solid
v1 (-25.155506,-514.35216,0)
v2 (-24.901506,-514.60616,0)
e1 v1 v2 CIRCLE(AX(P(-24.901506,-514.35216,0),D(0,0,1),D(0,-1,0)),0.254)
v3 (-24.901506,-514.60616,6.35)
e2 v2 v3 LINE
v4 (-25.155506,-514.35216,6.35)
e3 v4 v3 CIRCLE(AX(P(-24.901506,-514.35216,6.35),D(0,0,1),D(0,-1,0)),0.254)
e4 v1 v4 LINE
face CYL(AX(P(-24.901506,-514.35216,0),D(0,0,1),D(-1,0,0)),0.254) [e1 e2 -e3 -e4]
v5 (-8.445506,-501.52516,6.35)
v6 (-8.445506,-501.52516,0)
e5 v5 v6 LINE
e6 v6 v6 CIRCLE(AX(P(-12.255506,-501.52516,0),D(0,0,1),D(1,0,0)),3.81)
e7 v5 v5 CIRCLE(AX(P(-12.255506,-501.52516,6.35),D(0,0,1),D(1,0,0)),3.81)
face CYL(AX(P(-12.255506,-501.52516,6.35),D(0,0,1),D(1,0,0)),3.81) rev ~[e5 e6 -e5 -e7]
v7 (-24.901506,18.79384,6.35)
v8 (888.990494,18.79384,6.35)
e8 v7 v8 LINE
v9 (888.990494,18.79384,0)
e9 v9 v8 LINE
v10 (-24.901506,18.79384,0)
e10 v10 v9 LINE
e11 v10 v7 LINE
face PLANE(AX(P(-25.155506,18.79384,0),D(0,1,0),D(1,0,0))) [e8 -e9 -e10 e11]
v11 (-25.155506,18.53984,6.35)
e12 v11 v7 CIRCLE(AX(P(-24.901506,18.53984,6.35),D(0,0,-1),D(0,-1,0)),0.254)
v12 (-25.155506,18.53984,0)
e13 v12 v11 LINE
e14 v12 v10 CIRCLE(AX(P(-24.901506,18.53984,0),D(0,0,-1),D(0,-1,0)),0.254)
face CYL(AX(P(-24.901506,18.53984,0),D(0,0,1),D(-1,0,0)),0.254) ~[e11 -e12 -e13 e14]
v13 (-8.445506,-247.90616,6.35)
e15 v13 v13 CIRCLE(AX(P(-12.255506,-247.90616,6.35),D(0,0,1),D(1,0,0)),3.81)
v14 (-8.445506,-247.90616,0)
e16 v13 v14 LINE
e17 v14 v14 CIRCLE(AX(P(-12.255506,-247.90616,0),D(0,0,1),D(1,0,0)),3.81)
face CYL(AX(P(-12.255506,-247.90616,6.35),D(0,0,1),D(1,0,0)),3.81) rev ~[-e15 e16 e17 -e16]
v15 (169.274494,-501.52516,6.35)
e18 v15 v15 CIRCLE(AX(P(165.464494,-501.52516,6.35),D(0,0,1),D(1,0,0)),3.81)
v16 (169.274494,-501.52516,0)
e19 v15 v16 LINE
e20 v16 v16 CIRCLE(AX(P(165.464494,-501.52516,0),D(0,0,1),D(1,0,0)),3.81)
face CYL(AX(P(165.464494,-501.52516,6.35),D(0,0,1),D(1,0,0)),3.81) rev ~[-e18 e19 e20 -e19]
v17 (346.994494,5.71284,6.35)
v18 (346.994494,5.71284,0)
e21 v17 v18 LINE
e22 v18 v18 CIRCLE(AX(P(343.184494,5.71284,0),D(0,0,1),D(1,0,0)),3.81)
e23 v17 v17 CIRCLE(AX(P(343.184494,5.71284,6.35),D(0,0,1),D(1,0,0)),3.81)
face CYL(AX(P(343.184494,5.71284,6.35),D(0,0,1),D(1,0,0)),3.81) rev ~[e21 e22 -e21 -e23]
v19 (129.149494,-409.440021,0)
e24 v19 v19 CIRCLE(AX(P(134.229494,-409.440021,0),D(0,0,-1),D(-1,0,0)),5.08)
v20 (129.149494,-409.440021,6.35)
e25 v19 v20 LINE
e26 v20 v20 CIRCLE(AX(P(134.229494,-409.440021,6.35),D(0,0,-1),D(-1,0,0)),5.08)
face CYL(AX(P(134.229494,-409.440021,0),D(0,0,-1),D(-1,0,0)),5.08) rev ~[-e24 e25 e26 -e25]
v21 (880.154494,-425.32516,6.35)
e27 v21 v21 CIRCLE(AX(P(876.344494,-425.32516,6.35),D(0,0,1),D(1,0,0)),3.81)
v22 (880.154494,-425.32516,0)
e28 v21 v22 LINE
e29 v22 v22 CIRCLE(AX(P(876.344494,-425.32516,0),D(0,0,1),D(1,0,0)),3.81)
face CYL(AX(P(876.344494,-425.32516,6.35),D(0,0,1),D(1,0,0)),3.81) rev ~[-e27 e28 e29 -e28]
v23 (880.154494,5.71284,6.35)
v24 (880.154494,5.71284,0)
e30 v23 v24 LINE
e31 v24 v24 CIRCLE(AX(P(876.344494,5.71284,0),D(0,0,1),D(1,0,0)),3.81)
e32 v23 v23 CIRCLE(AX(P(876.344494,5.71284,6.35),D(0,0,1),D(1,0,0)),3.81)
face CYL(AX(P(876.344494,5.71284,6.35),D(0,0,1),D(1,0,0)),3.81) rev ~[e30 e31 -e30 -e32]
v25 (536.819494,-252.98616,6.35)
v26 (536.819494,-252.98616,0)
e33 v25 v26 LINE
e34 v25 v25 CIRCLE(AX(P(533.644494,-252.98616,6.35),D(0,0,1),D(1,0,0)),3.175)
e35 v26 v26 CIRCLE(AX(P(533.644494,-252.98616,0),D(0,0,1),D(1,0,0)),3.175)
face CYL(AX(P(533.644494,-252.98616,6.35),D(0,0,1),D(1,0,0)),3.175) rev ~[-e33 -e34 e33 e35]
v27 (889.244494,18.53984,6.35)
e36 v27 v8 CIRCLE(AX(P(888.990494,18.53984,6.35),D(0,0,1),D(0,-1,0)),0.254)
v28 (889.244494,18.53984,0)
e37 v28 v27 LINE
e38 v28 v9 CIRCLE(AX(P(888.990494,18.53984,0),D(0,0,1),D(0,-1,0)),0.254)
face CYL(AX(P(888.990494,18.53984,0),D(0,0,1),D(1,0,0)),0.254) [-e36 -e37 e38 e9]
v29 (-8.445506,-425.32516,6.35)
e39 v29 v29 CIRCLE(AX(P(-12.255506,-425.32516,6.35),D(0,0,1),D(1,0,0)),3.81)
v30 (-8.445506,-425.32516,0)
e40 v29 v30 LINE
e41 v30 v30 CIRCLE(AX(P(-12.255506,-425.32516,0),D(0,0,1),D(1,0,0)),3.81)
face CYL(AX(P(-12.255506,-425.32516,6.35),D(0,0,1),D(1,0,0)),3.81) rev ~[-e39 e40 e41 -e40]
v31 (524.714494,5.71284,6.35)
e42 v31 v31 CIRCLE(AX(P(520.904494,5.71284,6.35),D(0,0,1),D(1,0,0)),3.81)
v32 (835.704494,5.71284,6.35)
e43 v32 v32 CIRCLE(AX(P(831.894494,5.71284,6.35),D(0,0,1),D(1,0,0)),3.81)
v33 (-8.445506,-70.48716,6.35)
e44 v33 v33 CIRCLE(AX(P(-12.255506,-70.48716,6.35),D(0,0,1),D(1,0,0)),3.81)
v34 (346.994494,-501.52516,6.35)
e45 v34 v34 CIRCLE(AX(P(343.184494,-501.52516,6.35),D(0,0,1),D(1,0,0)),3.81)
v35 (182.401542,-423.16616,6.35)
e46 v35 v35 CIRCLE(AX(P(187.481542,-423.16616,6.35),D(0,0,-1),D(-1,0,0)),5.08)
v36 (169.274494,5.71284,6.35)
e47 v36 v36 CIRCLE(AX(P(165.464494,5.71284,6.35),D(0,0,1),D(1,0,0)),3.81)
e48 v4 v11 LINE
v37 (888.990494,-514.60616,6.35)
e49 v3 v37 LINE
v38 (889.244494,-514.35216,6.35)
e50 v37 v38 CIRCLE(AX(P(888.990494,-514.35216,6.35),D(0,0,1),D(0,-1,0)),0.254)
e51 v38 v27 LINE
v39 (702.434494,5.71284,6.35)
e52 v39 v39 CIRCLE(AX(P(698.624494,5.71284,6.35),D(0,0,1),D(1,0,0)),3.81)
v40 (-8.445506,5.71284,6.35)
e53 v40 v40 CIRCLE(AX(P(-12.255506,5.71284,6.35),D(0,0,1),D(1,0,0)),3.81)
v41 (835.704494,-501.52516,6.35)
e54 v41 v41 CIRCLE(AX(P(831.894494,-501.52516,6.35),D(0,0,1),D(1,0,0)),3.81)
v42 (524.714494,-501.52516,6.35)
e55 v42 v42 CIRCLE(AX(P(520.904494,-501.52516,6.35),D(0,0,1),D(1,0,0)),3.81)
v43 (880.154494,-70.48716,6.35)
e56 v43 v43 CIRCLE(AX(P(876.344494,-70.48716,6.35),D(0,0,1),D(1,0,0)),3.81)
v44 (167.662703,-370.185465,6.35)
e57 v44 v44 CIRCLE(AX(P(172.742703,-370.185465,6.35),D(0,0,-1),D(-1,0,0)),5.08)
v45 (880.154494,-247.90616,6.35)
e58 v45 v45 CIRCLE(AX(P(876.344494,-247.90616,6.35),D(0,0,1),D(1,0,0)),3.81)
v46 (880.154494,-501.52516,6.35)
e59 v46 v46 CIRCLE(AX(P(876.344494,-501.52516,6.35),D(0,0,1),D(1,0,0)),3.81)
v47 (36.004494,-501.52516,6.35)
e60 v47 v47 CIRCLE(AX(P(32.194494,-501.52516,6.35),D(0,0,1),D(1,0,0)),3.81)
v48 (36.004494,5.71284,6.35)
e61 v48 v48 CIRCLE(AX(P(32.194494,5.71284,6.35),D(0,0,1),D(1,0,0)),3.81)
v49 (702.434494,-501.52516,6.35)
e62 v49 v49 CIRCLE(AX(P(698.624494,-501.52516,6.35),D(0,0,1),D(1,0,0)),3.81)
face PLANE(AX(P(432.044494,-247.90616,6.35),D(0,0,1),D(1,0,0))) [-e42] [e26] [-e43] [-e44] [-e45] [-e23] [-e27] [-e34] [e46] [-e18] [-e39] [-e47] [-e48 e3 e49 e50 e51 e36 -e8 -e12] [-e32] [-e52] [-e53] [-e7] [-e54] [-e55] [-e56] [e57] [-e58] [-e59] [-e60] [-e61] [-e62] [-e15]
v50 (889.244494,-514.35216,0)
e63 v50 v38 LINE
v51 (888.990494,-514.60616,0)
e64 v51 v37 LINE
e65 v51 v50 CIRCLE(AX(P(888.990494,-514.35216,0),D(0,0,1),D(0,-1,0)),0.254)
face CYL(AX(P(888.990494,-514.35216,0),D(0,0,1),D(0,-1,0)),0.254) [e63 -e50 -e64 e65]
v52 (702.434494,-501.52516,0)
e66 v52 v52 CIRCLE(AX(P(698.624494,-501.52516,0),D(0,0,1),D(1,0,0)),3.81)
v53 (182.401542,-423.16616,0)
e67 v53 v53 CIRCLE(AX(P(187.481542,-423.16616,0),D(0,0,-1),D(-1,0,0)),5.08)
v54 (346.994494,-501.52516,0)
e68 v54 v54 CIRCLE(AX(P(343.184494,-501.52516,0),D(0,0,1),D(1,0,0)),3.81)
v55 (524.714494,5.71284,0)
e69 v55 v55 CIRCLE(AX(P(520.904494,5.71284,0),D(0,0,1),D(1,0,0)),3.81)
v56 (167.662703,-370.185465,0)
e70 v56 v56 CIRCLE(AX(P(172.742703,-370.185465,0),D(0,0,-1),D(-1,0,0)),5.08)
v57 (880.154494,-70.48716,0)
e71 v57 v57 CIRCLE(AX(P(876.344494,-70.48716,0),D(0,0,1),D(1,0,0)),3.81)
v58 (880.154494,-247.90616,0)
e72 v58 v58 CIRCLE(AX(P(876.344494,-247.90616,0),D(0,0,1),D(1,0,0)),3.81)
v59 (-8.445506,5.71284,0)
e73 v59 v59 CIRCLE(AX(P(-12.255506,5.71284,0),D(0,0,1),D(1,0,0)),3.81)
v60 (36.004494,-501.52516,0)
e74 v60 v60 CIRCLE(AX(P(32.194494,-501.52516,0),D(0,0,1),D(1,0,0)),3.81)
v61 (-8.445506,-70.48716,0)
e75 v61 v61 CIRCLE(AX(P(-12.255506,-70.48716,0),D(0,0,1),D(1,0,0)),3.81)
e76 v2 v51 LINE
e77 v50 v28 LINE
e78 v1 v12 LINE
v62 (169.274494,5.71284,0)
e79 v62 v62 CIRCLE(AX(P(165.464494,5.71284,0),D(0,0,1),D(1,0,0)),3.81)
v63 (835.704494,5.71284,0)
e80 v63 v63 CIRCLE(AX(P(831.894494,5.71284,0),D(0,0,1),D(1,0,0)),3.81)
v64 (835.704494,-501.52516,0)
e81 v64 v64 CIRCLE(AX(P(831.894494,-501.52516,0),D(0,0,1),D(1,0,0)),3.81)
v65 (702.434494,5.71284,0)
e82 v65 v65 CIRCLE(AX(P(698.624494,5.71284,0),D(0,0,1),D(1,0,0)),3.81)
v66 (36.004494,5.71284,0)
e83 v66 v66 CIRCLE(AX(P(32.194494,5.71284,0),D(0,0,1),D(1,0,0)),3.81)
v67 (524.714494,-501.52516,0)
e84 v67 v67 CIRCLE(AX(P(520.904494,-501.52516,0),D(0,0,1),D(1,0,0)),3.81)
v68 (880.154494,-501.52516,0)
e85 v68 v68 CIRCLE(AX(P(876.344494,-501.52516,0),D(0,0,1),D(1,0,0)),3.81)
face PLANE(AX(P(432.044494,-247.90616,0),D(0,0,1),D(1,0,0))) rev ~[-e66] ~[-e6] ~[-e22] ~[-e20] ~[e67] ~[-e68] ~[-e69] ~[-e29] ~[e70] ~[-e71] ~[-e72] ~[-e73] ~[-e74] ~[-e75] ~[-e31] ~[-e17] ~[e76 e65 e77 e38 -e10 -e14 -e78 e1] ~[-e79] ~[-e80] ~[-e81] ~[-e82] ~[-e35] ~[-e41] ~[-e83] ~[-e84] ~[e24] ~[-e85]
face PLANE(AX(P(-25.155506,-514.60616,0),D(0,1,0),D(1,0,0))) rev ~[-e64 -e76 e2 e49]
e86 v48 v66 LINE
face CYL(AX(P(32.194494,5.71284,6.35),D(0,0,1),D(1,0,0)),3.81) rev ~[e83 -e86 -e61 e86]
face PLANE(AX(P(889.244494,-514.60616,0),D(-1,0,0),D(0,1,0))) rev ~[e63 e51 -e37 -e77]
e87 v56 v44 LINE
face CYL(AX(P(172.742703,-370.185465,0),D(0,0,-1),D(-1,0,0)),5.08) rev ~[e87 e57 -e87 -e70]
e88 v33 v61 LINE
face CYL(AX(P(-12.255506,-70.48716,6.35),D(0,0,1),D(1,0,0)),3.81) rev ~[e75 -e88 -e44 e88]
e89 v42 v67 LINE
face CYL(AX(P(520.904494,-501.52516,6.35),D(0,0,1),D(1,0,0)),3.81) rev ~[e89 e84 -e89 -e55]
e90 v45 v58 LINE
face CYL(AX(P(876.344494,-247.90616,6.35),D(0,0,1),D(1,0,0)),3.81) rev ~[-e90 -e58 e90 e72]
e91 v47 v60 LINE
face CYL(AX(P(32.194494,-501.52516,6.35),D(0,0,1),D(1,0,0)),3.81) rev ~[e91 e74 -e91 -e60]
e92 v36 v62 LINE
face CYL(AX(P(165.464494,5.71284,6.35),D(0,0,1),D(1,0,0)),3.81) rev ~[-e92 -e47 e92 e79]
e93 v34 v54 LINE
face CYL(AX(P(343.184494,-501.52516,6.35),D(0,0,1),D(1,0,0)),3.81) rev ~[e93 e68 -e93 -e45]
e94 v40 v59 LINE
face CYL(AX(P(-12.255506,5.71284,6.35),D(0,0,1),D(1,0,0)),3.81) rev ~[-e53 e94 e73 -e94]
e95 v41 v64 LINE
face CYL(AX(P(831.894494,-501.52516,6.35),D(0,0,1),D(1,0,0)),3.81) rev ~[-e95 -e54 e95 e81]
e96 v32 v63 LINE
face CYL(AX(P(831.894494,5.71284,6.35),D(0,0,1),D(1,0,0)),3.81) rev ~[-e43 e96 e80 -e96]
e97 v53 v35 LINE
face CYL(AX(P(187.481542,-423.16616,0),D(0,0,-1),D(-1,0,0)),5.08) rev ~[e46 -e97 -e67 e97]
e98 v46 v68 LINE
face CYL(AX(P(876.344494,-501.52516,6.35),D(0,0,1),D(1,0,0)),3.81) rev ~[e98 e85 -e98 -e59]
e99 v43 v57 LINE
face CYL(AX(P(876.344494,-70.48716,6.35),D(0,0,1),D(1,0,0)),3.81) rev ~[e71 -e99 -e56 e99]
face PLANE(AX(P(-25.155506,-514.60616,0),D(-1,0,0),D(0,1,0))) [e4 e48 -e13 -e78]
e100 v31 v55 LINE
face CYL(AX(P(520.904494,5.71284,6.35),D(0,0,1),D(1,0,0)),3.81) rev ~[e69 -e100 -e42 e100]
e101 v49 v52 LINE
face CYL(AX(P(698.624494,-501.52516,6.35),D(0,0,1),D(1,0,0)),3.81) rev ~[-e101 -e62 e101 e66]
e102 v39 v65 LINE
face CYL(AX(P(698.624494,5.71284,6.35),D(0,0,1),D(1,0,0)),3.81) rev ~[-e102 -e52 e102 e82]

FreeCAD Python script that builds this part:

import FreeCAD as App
import Part
import Sketcher
Q = App.Units.Quantity


def edges_at(feature, points):
    """Names of the edges that pass closest to the given points."""
    edges = feature.Shape.Edges
    near = lambda p: min(range(len(edges)), key=lambda i: edges[i].distToShape(Part.Vertex(*p))[0])
    return sorted({f"Edge{near(p) + 1}" for p in points})

doc = App.newDocument("Part")
params = doc.addObject("Spreadsheet::Sheet", "Params")
for row, (alias, value) in enumerate([
    ("sketch1_width", "36 in"),
    ("sketch1_height", "21 in"),
    ("pad1_length", "0.25 in"),
    ("fillet_radius", "0.01 in"),
    ("sketch2_diameter", "0.4 in"),
    ("sketch3_diameter", "0.3 in"),
    ("sketch4_diameter", "0.25 in"),
], start=1):
    params.set(f"A{row}", alias)
    params.set(f"B{row}", "=" + value)
    params.setAlias(f"B{row}", alias)

body = doc.addObject("PartDesign::Body", "Body")

sketch1 = doc.addObject("Sketcher::SketchObject", "Sketch")
body.addObject(sketch1)
sketch1.AttachmentSupport = (doc.XY_Plane, [""])
sketch1.MapMode = "FlatFace"
sketch1.addGeometry([
    Part.LineSegment(App.Vector(-25.155506, 18.79384, 0), App.Vector(-25.155506, -514.60616, 0)),
    Part.LineSegment(App.Vector(-25.155506, -514.60616, 0), App.Vector(889.244494, -514.60616, 0)),
    Part.LineSegment(App.Vector(889.244494, -514.60616, 0), App.Vector(889.244494, 18.79384, 0)),
    Part.LineSegment(App.Vector(889.244494, 18.79384, 0), App.Vector(-25.155506, 18.79384, 0)),
], False)
sketch1.addConstraint([
    Sketcher.Constraint("Coincident", 0, 2, 1, 1),
    Sketcher.Constraint("Coincident", 1, 2, 2, 1),
    Sketcher.Constraint("Coincident", 2, 2, 3, 1),
    Sketcher.Constraint("Coincident", 3, 2, 0, 1),
    Sketcher.Constraint("Vertical", 0),
    Sketcher.Constraint("Horizontal", 1),
    Sketcher.Constraint("Vertical", 2),
    Sketcher.Constraint("Horizontal", 3),
    Sketcher.Constraint("DistanceX", 1, 1, 1, 2, Q("36 in")),
    Sketcher.Constraint("DistanceY", 0, 2, 0, 1, Q("21 in")),
    Sketcher.Constraint("DistanceY", 0, 2, -1, 1, 514.60616),
    Sketcher.Constraint("DistanceX", 0, 2, -1, 1, 25.155506),
])
sketch1.setExpression("Constraints[8]", "Params.sketch1_width")
sketch1.setExpression("Constraints[9]", "Params.sketch1_height")
pad1 = doc.addObject("PartDesign::Pad", "Pad")
body.addObject(pad1)
pad1.Profile = sketch1
pad1.setExpression("Length", "Params.pad1_length")
doc.recompute()

fillet = doc.addObject("PartDesign::Fillet", "Fillet")
body.addObject(fillet)
fillet.Base = (pad1, edges_at(pad1, [
    (-25.156, 18.794, 3.175),
    (889.244, 18.794, 3.175),
    (889.244, -514.606, 3.175),
    (-25.156, -514.606, 3.175),
]))
fillet.setExpression("Radius", "Params.fillet_radius")

sketch2 = doc.addObject("Sketcher::SketchObject", "Sketch001")
body.addObject(sketch2)
sketch2.AttachmentSupport = (doc.XY_Plane, [""])
sketch2.MapMode = "FlatFace"
sketch2.addGeometry([
    Part.Circle(App.Vector(187.481542, -423.16616, 0), App.Vector(0, 0, 1), 5.08),
    Part.Circle(App.Vector(134.229494, -409.440021, 0), App.Vector(0, 0, 1), 5.08),
    Part.Circle(App.Vector(172.742703, -370.185465, 0), App.Vector(0, 0, 1), 5.08),
], False)
sketch2.addConstraint([
    Sketcher.Constraint("Equal", 0, 1),
    Sketcher.Constraint("Equal", 1, 2),
    Sketcher.Constraint("Diameter", 0, Q("0.4 in")),
    Sketcher.Constraint("DistanceX", -1, 1, 0, 3, 187.481542),
    Sketcher.Constraint("DistanceY", 0, 3, -1, 1, 423.16616),
    Sketcher.Constraint("DistanceY", 1, 3, -1, 1, 409.440021),
    Sketcher.Constraint("DistanceX", 2, 3, 0, 3, 14.738839),
    Sketcher.Constraint("DistanceX", 1, 3, 2, 3, 38.513209),
    Sketcher.Constraint("DistanceY", 2, 3, -1, 1, 370.185465),
])
sketch2.setExpression("Constraints[2]", "Params.sketch2_diameter")
pocket1 = doc.addObject("PartDesign::Pocket", "Pocket")
body.addObject(pocket1)
pocket1.Profile = sketch2
pocket1.Type = "ThroughAll"
pocket1.Reversed = True

sketch3 = doc.addObject("Sketcher::SketchObject", "Sketch002")
body.addObject(sketch3)
sketch3.AttachmentSupport = (doc.XY_Plane, [""])
sketch3.MapMode = "FlatFace"
sketch3.AttachmentOffset = App.Placement(App.Vector(0, 0, 0.25 * 25.4), App.Rotation())
sketch3.addGeometry([
    Part.Circle(App.Vector(876.344494, 5.71284, 0), App.Vector(0, 0, 1), 3.81),
    Part.Circle(App.Vector(876.344494, -247.90616, 0), App.Vector(0, 0, 1), 3.81),
    Part.Circle(App.Vector(876.344494, -501.52516, 0), App.Vector(0, 0, 1), 3.81),
    Part.Circle(App.Vector(-12.255506, 5.71284, 0), App.Vector(0, 0, 1), 3.81),
    Part.Circle(App.Vector(-12.255506, -247.90616, 0), App.Vector(0, 0, 1), 3.81),
    Part.Circle(App.Vector(-12.255506, -501.52516, 0), App.Vector(0, 0, 1), 3.81),
    Part.Circle(App.Vector(698.624494, 5.71284, 0), App.Vector(0, 0, 1), 3.81),
    Part.Circle(App.Vector(520.904494, 5.71284, 0), App.Vector(0, 0, 1), 3.81),
    Part.Circle(App.Vector(343.184494, 5.71284, 0), App.Vector(0, 0, 1), 3.81),
    Part.Circle(App.Vector(165.464494, 5.71284, 0), App.Vector(0, 0, 1), 3.81),
    Part.Circle(App.Vector(698.624494, -501.52516, 0), App.Vector(0, 0, 1), 3.81),
    Part.Circle(App.Vector(520.904494, -501.52516, 0), App.Vector(0, 0, 1), 3.81),
    Part.Circle(App.Vector(343.184494, -501.52516, 0), App.Vector(0, 0, 1), 3.81),
    Part.Circle(App.Vector(165.464494, -501.52516, 0), App.Vector(0, 0, 1), 3.81),
    Part.Circle(App.Vector(831.894494, 5.71284, 0), App.Vector(0, 0, 1), 3.81),
    Part.Circle(App.Vector(876.344494, -70.48716, 0), App.Vector(0, 0, 1), 3.81),
    Part.Circle(App.Vector(876.344494, -425.32516, 0), App.Vector(0, 0, 1), 3.81),
    Part.Circle(App.Vector(831.894494, -501.52516, 0), App.Vector(0, 0, 1), 3.81),
    Part.Circle(App.Vector(32.194494, -501.52516, 0), App.Vector(0, 0, 1), 3.81),
    Part.Circle(App.Vector(-12.255506, -425.32516, 0), App.Vector(0, 0, 1), 3.81),
    Part.Circle(App.Vector(-12.255506, -70.48716, 0), App.Vector(0, 0, 1), 3.81),
    Part.Circle(App.Vector(32.194494, 5.71284, 0), App.Vector(0, 0, 1), 3.81),
], False)
sketch3.addConstraint([
    Sketcher.Constraint("Equal", 0, 1),
    Sketcher.Constraint("Equal", 1, 2),
    Sketcher.Constraint("Equal", 2, 3),
    Sketcher.Constraint("Equal", 3, 4),
    Sketcher.Constraint("Equal", 4, 5),
    Sketcher.Constraint("Equal", 5, 6),
    Sketcher.Constraint("Equal", 6, 7),
    Sketcher.Constraint("Equal", 7, 8),
    Sketcher.Constraint("Equal", 8, 9),
    Sketcher.Constraint("Equal", 9, 10),
    Sketcher.Constraint("Equal", 10, 11),
    Sketcher.Constraint("Equal", 11, 12),
    Sketcher.Constraint("Equal", 12, 13),
    Sketcher.Constraint("Equal", 13, 14),
    Sketcher.Constraint("Equal", 14, 15),
    Sketcher.Constraint("Equal", 15, 16),
    Sketcher.Constraint("Equal", 16, 17),
    Sketcher.Constraint("Equal", 17, 18),
    Sketcher.Constraint("Equal", 18, 19),
    Sketcher.Constraint("Equal", 19, 20),
    Sketcher.Constraint("Equal", 20, 21),
    Sketcher.Constraint("Horizontal", 0, 3, 3, 3),
    Sketcher.Constraint("Horizontal", 1, 3, 4, 3),
    Sketcher.Constraint("Horizontal", 2, 3, 5, 3),
    Sketcher.Constraint("Horizontal", 3, 3, 6, 3),
    Sketcher.Constraint("Horizontal", 6, 3, 7, 3),
    Sketcher.Constraint("Horizontal", 7, 3, 8, 3),
    Sketcher.Constraint("Horizontal", 8, 3, 9, 3),
    Sketcher.Constraint("Horizontal", 5, 3, 10, 3),
    Sketcher.Constraint("Horizontal", 10, 3, 11, 3),
    Sketcher.Constraint("Horizontal", 11, 3, 12, 3),
    Sketcher.Constraint("Horizontal", 12, 3, 13, 3),
    Sketcher.Constraint("Horizontal", 9, 3, 14, 3),
    Sketcher.Constraint("Horizontal", 13, 3, 17, 3),
    Sketcher.Constraint("Horizontal", 17, 3, 18, 3),
    Sketcher.Constraint("Horizontal", 16, 3, 19, 3),
    Sketcher.Constraint("Horizontal", 15, 3, 20, 3),
    Sketcher.Constraint("Horizontal", 14, 3, 21, 3),
    Sketcher.Constraint("Vertical", 0, 3, 1, 3),
    Sketcher.Constraint("Vertical", 1, 3, 2, 3),
    Sketcher.Constraint("Vertical", 3, 3, 4, 3),
    Sketcher.Constraint("Vertical", 4, 3, 5, 3),
    Sketcher.Constraint("Vertical", 6, 3, 10, 3),
    Sketcher.Constraint("Vertical", 7, 3, 11, 3),
    Sketcher.Constraint("Vertical", 8, 3, 12, 3),
    Sketcher.Constraint("Vertical", 9, 3, 13, 3),
    Sketcher.Constraint("Vertical", 2, 3, 15, 3),
    Sketcher.Constraint("Vertical", 15, 3, 16, 3),
    Sketcher.Constraint("Vertical", 14, 3, 17, 3),
    Sketcher.Constraint("Vertical", 5, 3, 19, 3),
    Sketcher.Constraint("Vertical", 19, 3, 20, 3),
    Sketcher.Constraint("Vertical", 18, 3, 21, 3),
    Sketcher.Constraint("Diameter", 0, Q("0.3 in")),
    Sketcher.Constraint("DistanceY", 15, 3, 0, 3, Q("3 in")),
    Sketcher.Constraint("DistanceY", 2, 3, 16, 3, Q("3 in")),
    Sketcher.Constraint("DistanceY", 2, 3, 0, 3, Q("19.97 in")),
    Sketcher.Constraint("DistanceX", 14, 3, 0, 3, Q("1.75 in")),
    Sketcher.Constraint("DistanceX", 5, 3, 18, 3, Q("1.75 in")),
    Sketcher.Constraint("DistanceY", 1, 3, 0, 3, Q("9.985 in")),
    Sketcher.Constraint("DistanceX", 3, 3, 0, 3, 888.6),
    Sketcher.Constraint("DistanceX", 6, 3, 0, 3, 177.72),
    Sketcher.Constraint("DistanceX", 7, 3, 6, 3, 177.72),
    Sketcher.Constraint("DistanceX", 8, 3, 7, 3, 177.72),
    Sketcher.Constraint("DistanceX", 3, 3, 9, 3, 177.72),
    Sketcher.Constraint("DistanceY", -1, 1, 0, 3, 5.71284),
    Sketcher.Constraint("DistanceX", -1, 1, 0, 3, 876.344494),
])
sketch3.setExpression("Constraints[52]", "Params.sketch3_diameter")
pocket2 = doc.addObject("PartDesign::Pocket", "Pocket001")
body.addObject(pocket2)
pocket2.Profile = sketch3
pocket2.Type = "ThroughAll"

sketch4 = doc.addObject("Sketcher::SketchObject", "Sketch003")
body.addObject(sketch4)
sketch4.AttachmentSupport = (doc.XY_Plane, [""])
sketch4.MapMode = "FlatFace"
sketch4.AttachmentOffset = App.Placement(App.Vector(0, 0, 0.25 * 25.4), App.Rotation())
sketch4.addGeometry(Part.Circle(App.Vector(533.644494, -252.98616, 0), App.Vector(0, 0, 1), 3.175), False)
sketch4.addConstraint([
    Sketcher.Constraint("Diameter", 0, Q("0.25 in")),
    Sketcher.Constraint("DistanceY", 0, 3, -1, 1, 252.98616),
    Sketcher.Constraint("DistanceX", -1, 1, 0, 3, 533.644494),
])
sketch4.setExpression("Constraints[0]", "Params.sketch4_diameter")
pocket3 = doc.addObject("PartDesign::Pocket", "Pocket002")
body.addObject(pocket3)
pocket3.Profile = sketch4
pocket3.Type = "ThroughAll"

doc.recompute()
